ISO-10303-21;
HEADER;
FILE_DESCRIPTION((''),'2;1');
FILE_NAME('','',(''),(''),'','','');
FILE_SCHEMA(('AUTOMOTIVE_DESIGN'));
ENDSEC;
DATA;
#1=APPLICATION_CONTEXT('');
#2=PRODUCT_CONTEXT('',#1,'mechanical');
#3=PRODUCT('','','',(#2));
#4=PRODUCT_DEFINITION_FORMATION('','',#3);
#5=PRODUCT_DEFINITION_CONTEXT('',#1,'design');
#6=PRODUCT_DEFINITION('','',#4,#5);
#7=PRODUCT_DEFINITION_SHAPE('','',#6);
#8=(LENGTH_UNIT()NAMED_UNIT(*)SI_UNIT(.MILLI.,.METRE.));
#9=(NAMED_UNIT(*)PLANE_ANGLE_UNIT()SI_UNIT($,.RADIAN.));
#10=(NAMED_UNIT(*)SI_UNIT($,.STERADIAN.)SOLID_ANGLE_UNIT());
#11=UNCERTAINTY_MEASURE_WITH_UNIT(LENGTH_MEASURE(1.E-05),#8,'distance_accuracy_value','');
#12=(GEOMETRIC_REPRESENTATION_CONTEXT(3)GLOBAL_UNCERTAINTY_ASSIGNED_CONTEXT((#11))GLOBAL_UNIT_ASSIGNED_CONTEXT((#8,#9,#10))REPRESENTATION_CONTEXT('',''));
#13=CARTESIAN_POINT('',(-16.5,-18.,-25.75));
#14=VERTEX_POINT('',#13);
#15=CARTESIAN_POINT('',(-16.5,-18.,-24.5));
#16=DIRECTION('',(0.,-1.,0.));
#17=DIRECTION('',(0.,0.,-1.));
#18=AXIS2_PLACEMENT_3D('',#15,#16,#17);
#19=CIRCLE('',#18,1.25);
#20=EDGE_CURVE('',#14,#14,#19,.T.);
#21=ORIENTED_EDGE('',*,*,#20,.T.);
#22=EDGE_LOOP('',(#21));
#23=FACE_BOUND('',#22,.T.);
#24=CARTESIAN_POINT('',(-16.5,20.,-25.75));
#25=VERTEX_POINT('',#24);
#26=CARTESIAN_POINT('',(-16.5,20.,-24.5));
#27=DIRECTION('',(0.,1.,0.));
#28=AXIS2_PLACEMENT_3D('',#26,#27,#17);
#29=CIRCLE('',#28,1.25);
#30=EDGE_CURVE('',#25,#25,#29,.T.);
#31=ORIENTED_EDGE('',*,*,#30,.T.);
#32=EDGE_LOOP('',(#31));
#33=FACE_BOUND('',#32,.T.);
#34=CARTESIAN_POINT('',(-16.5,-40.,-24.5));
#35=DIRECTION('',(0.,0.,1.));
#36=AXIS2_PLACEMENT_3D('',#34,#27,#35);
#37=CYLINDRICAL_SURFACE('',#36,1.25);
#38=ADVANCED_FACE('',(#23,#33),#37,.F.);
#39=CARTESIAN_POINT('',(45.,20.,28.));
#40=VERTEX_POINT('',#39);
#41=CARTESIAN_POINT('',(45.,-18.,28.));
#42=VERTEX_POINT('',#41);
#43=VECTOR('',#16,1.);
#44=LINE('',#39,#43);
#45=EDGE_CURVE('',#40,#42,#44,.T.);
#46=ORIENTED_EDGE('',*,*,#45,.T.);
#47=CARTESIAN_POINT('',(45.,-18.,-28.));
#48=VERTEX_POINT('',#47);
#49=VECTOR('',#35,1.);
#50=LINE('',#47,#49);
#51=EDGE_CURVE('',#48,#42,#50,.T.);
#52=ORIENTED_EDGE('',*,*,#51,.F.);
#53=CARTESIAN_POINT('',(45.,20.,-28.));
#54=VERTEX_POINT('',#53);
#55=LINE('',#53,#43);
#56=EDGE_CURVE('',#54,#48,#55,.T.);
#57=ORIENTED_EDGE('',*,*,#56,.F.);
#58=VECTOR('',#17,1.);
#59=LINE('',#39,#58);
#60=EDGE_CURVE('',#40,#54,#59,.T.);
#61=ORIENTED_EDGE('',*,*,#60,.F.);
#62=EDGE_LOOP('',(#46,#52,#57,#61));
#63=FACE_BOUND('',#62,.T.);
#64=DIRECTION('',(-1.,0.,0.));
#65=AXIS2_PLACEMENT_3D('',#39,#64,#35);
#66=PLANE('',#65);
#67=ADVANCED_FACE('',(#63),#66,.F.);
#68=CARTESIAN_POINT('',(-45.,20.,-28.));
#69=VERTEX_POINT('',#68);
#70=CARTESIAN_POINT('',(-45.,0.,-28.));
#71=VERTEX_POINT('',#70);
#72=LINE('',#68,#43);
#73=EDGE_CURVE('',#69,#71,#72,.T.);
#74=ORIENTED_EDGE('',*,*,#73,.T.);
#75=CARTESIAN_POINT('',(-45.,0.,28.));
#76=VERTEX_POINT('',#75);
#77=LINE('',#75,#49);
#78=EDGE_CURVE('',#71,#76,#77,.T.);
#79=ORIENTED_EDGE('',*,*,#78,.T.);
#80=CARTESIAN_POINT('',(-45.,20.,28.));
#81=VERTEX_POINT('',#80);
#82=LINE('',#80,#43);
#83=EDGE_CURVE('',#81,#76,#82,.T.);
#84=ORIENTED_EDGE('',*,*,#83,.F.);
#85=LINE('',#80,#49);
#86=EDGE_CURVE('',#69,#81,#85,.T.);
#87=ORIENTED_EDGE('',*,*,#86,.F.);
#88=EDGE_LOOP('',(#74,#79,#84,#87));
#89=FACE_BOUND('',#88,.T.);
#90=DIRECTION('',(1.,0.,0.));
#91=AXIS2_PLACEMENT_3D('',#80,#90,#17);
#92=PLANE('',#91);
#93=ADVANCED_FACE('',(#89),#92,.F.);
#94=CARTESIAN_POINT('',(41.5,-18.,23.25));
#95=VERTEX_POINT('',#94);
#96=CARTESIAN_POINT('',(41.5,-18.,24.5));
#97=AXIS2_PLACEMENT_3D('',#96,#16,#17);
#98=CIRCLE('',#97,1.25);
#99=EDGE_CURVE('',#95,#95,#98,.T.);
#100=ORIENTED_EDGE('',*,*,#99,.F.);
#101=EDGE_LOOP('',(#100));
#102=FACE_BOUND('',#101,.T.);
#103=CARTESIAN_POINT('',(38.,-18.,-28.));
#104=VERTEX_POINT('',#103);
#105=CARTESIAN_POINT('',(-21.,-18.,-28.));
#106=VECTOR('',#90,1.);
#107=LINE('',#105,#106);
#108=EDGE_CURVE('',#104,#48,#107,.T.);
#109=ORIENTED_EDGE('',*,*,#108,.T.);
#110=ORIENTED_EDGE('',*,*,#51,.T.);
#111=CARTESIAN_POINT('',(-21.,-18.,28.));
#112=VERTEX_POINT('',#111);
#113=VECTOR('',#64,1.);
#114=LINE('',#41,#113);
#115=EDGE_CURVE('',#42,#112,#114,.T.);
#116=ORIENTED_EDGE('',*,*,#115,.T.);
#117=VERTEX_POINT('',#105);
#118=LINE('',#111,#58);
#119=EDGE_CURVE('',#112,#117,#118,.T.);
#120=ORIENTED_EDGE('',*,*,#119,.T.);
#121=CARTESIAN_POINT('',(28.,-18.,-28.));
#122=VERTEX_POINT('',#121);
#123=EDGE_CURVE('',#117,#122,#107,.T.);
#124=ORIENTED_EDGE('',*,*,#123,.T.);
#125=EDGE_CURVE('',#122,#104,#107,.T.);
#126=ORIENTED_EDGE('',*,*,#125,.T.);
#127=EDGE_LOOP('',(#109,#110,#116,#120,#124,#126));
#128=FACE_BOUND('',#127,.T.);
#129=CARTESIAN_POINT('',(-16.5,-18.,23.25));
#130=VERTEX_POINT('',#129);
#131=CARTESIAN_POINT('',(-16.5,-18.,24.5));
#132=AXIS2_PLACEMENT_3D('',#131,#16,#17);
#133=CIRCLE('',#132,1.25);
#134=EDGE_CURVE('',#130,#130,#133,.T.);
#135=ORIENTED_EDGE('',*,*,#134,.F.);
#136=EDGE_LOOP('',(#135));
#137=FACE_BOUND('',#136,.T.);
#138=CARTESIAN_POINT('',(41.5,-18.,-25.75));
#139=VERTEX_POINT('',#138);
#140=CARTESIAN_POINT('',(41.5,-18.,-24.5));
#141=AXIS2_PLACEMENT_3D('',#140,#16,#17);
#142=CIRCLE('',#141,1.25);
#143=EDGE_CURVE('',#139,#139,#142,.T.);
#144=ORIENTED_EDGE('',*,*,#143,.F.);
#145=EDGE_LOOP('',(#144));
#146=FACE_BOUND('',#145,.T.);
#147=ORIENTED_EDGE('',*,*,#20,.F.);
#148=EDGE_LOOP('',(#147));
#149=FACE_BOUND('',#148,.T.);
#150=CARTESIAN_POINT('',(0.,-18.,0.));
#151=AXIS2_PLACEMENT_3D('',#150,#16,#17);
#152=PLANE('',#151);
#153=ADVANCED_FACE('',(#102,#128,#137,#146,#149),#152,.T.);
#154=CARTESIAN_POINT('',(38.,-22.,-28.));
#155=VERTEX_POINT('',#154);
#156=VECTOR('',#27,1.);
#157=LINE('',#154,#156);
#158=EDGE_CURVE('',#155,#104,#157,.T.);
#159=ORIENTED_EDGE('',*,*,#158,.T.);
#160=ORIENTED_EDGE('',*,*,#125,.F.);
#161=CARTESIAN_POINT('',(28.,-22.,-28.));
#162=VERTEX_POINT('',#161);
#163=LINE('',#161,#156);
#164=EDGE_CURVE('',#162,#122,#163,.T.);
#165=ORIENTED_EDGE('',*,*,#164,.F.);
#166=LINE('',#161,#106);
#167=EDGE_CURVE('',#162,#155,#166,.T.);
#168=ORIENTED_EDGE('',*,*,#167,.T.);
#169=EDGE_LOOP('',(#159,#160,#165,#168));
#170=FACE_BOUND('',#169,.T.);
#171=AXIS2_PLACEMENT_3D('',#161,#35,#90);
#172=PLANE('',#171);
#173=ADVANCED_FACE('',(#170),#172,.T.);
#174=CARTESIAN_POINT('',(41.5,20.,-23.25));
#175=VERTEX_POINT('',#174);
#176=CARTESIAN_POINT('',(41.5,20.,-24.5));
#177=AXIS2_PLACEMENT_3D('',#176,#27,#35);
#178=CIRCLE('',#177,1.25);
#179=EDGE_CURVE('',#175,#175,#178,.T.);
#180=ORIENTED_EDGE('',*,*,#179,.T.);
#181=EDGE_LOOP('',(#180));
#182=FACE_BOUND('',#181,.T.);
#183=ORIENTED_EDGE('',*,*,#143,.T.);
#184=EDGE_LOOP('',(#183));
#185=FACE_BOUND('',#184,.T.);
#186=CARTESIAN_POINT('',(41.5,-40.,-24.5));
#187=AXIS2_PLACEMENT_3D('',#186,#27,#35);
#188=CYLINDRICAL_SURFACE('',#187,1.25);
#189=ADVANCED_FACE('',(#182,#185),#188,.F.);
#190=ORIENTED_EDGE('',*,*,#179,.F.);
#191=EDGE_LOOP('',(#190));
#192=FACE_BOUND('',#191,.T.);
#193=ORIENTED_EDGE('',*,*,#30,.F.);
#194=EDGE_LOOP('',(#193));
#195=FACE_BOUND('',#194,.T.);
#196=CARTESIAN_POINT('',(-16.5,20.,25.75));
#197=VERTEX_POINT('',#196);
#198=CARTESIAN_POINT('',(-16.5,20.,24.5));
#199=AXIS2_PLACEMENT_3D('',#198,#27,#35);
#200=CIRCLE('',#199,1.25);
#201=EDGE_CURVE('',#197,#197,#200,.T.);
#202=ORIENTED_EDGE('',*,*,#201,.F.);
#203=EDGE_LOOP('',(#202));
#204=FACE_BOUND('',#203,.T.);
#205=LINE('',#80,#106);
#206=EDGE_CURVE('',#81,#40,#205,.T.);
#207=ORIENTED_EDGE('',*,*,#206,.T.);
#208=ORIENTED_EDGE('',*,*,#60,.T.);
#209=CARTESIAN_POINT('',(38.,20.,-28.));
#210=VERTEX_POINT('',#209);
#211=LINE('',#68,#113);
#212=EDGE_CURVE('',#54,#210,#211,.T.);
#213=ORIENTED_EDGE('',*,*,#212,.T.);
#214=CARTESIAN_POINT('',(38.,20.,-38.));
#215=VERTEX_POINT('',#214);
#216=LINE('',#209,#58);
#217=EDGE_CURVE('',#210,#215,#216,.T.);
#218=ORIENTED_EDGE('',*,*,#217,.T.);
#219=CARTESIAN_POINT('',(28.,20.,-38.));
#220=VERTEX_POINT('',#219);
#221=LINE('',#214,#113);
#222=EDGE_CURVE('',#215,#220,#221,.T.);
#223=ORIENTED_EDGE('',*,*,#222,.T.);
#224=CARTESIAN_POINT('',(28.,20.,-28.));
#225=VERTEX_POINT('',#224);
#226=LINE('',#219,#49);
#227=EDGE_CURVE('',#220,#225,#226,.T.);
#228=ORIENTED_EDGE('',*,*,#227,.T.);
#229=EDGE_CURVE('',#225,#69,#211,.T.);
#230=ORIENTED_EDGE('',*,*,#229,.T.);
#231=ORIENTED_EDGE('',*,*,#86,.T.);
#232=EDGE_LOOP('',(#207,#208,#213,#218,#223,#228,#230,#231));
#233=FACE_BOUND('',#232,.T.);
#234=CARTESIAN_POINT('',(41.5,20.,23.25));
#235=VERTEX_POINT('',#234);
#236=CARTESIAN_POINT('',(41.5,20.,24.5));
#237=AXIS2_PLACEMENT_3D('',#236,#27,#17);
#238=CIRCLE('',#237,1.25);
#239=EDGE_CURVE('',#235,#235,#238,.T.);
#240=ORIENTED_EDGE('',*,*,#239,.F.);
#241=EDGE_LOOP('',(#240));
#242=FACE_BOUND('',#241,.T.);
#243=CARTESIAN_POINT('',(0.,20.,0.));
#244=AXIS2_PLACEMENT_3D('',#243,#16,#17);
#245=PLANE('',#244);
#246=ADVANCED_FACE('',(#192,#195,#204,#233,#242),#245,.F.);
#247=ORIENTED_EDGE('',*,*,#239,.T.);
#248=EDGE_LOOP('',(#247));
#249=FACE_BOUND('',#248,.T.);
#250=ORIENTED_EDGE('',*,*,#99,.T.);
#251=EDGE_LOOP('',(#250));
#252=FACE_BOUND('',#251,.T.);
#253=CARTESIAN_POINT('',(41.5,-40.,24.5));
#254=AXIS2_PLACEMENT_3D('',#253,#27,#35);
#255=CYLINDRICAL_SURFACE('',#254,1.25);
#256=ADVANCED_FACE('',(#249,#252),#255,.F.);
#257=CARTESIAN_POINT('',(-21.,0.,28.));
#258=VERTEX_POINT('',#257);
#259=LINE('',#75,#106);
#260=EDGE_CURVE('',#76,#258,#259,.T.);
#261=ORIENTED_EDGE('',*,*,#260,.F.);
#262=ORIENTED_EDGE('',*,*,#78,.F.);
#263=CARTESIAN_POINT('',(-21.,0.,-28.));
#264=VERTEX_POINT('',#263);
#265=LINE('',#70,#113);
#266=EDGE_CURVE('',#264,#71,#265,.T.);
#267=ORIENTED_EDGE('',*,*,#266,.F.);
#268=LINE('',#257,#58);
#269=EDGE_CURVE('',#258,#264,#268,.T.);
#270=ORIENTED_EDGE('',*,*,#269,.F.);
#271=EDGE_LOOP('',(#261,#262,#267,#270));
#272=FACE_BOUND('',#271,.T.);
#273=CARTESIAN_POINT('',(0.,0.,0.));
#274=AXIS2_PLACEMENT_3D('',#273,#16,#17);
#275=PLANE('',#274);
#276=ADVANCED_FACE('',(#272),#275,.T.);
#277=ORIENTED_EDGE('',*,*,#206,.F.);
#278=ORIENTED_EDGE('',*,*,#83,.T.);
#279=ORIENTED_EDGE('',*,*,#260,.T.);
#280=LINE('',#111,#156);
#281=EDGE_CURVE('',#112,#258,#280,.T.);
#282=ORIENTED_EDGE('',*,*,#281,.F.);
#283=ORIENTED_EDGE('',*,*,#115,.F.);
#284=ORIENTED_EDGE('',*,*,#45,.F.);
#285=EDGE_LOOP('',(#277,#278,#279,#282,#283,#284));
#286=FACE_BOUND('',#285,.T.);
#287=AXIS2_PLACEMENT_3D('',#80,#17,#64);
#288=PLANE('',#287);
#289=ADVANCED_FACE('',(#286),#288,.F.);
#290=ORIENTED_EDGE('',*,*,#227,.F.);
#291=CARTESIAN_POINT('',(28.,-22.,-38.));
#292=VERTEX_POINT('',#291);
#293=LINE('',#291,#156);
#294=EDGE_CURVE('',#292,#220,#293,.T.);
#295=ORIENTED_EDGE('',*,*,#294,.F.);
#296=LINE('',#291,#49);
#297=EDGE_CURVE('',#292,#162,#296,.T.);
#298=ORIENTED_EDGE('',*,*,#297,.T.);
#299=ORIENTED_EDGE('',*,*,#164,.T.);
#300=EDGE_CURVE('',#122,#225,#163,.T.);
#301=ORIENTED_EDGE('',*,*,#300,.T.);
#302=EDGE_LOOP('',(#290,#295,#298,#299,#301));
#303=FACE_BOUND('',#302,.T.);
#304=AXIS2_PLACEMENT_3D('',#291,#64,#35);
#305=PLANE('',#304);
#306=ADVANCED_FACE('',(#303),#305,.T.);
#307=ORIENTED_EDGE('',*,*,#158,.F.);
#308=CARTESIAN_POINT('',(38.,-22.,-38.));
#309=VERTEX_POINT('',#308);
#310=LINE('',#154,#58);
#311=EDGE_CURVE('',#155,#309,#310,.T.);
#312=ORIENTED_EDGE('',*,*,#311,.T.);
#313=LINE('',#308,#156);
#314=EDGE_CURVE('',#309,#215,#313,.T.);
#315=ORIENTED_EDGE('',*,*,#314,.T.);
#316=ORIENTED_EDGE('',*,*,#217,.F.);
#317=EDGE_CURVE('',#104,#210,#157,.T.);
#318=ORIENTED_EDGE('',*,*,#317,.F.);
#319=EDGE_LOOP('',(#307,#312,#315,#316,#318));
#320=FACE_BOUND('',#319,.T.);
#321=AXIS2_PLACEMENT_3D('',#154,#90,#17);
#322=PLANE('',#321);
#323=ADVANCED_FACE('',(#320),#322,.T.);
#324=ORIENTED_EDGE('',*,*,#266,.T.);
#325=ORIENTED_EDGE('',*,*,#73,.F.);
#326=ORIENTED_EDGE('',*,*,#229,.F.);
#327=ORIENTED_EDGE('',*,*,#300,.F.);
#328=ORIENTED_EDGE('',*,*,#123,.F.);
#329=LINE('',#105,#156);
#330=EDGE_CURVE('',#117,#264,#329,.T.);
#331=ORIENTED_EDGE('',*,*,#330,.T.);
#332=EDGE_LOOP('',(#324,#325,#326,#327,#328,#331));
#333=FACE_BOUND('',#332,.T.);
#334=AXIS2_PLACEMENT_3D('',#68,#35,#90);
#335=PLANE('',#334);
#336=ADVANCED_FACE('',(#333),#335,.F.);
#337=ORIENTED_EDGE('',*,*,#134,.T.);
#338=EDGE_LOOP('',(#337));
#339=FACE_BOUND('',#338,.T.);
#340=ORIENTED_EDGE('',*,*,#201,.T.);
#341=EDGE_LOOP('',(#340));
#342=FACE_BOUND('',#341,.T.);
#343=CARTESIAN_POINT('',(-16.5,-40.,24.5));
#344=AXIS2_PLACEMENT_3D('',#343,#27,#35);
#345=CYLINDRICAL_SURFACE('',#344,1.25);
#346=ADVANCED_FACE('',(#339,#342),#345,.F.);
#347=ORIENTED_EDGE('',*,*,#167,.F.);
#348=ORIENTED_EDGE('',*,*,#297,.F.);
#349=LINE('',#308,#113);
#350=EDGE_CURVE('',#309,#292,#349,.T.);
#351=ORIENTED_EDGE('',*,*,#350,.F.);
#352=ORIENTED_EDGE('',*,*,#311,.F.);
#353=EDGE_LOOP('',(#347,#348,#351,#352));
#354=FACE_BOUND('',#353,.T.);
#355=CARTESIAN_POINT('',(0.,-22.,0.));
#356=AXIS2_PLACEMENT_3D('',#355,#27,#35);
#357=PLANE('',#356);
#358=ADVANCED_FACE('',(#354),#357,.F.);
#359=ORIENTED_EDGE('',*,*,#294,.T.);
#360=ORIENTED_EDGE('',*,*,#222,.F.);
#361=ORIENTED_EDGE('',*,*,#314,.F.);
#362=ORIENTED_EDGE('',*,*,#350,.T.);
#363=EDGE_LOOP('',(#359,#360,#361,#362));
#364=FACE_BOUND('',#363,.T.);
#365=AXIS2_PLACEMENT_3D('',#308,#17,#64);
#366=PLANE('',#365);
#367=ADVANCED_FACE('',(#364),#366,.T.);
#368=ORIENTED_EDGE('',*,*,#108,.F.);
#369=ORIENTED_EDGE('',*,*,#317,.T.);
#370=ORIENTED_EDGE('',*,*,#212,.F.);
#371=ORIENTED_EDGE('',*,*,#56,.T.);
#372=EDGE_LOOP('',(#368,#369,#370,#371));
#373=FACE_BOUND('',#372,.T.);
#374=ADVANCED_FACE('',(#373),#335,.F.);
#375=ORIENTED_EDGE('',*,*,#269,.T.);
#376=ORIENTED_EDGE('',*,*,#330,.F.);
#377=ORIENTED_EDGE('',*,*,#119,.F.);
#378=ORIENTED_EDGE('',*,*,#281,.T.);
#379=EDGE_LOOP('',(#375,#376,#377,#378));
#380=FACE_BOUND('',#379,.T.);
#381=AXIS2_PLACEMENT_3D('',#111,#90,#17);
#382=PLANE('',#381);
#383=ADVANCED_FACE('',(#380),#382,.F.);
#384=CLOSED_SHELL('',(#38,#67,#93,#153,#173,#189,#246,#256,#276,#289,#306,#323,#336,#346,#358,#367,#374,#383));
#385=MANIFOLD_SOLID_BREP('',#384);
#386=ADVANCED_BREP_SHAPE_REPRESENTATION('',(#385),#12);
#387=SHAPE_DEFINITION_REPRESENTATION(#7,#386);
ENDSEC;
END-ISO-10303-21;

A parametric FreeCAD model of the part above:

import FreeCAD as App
import Part
import Sketcher

V = App.Vector
Q = App.Units.Quantity


def add_polygon(sketch, points):
    """Adds a closed chain of lines whose ends are joined by coincident constraints."""
    first, n = sketch.GeometryCount, len(points)
    for a, b in zip(points, points[1:] + points[:1]):
        sketch.addGeometry(Part.LineSegment(App.Vector(*a, 0), App.Vector(*b, 0)), False)
    for i in range(n):
        sketch.addConstraint(Sketcher.Constraint("Coincident", first + i, 2, first + (i + 1) % n, 1))

doc = App.newDocument("Part")
body = doc.addObject("PartDesign::Body", "Body")

sketch1 = body.newObject("Sketcher::SketchObject", "Sketch")
sketch1.AttachmentSupport = (doc.getObject("XZ_Plane"), [""])
sketch1.MapMode = "FlatFace"
add_polygon(sketch1, [(-45, -28), (-45, 28), (45, 28), (45, -28)])
sketch1.addConstraint(Sketcher.Constraint("Vertical", 0))
sketch1.addConstraint(Sketcher.Constraint("Horizontal", 1))
sketch1.addConstraint(Sketcher.Constraint("Vertical", 2))
sketch1.addConstraint(Sketcher.Constraint("Horizontal", 3))
sketch1.addConstraint(Sketcher.Constraint("Symmetric", 0, 2, 2, 2, -1, 1))
sketch1.addConstraint(Sketcher.Constraint("DistanceX", 1, 1, 1, 2, Q("90 mm")))
sketch1.addConstraint(Sketcher.Constraint("DistanceY", 0, 1, 0, 2, Q("56 mm")))
pad1 = body.newObject("PartDesign::Pad", "Pad")
pad1.Profile = sketch1
pad1.Length = 20
pad1.Reversed = True

sketch2 = body.newObject("Sketcher::SketchObject", "Sketch001")
sketch2.AttachmentSupport = (doc.getObject("XZ_Plane"), [""])
sketch2.MapMode = "FlatFace"
add_polygon(sketch2, [(-21, 28), (-21, -28), (45, -28), (45, 28)])
sketch2.addConstraint(Sketcher.Constraint("Vertical", 0))
sketch2.addConstraint(Sketcher.Constraint("Horizontal", 1))
sketch2.addConstraint(Sketcher.Constraint("Vertical", 2))
sketch2.addConstraint(Sketcher.Constraint("Horizontal", 3))
sketch2.addConstraint(Sketcher.Constraint("DistanceX", 1, 1, 1, 2, Q("66 mm")))
sketch2.addConstraint(Sketcher.Constraint("DistanceY", 0, 2, 0, 1, Q("56 mm")))
sketch2.addConstraint(Sketcher.Constraint("DistanceX", 0, 2, -1, 1, Q("21 mm")))
sketch2.addConstraint(Sketcher.Constraint("DistanceY", 0, 2, -1, 1, Q("28 mm")))
pad2 = body.newObject("PartDesign::Pad", "Pad001")
pad2.Profile = sketch2
pad2.Length = 18

sketch3 = body.newObject("Sketcher::SketchObject", "Sketch002")
sketch3.AttachmentSupport = (doc.getObject("XZ_Plane"), [""])
sketch3.MapMode = "FlatFace"
sketch3.AttachmentOffset = App.Placement(V(0, 0, -20), App.Rotation())
sketch3.addGeometry(Part.Circle(V(41.5, -24.5, 0), V(0, 0, 1), 1.2), False)
sketch3.addGeometry(Part.Circle(V(41.5, 24.5, 0), V(0, 0, 1), 1.2), False)
sketch3.addGeometry(Part.Circle(V(-16.5, 24.5, 0), V(0, 0, 1), 1.2), False)
sketch3.addGeometry(Part.Circle(V(-16.5, -24.5, 0), V(0, 0, 1), 1.2), False)
sketch3.addConstraint(Sketcher.Constraint("Equal", 0, 1))
sketch3.addConstraint(Sketcher.Constraint("Equal", 1, 2))
sketch3.addConstraint(Sketcher.Constraint("Equal", 2, 3))
sketch3.addConstraint(Sketcher.Constraint("Symmetric", 0, 3, 1, 3, -1))
sketch3.addConstraint(Sketcher.Constraint("Symmetric", 2, 3, 3, 3, -1))
sketch3.addConstraint(Sketcher.Constraint("Horizontal", 1, 3, 2, 3))
sketch3.addConstraint(Sketcher.Constraint("Diameter", 0, Q("2.5 mm")))
sketch3.addConstraint(Sketcher.Constraint("DistanceY", 0, 3, 1, 3, Q("49 mm")))
sketch3.addConstraint(Sketcher.Constraint("DistanceX", 2, 3, 1, 3, Q("58 mm")))
sketch3.addConstraint(Sketcher.Constraint("DistanceX", -1, 1, 0, 3, Q("41.5 mm")))
pocket1 = body.newObject("PartDesign::Pocket", "Pocket")
pocket1.Profile = sketch3
pocket1.Length = 60
pocket1.Reversed = True

sketch4 = body.newObject("Sketcher::SketchObject", "Sketch003")
sketch4.AttachmentSupport = (doc.getObject("XZ_Plane"), [""])
sketch4.MapMode = "FlatFace"
sketch4.AttachmentOffset = App.Placement(V(0, 0, -20), App.Rotation())
add_polygon(sketch4, [(28, -38), (28, -28), (38, -28), (38, -38)])
sketch4.addConstraint(Sketcher.Constraint("Vertical", 0))
sketch4.addConstraint(Sketcher.Constraint("Horizontal", 1))
sketch4.addConstraint(Sketcher.Constraint("Vertical", 2))
sketch4.addConstraint(Sketcher.Constraint("Horizontal", 3))
sketch4.addConstraint(Sketcher.Constraint("Equal", 3, 0))
sketch4.addConstraint(Sketcher.Constraint("DistanceX", 1, 1, 1, 2, Q("10 mm")))
sketch4.addConstraint(Sketcher.Constraint("DistanceX", -1, 1, 0, 2, Q("28 mm")))
sketch4.addConstraint(Sketcher.Constraint("DistanceY", 0, 2, -1, 1, Q("28 mm")))
pad3 = body.newObject("PartDesign::Pad", "Pad002")
pad3.Profile = sketch4
pad3.Length = 42

doc.recompute()
